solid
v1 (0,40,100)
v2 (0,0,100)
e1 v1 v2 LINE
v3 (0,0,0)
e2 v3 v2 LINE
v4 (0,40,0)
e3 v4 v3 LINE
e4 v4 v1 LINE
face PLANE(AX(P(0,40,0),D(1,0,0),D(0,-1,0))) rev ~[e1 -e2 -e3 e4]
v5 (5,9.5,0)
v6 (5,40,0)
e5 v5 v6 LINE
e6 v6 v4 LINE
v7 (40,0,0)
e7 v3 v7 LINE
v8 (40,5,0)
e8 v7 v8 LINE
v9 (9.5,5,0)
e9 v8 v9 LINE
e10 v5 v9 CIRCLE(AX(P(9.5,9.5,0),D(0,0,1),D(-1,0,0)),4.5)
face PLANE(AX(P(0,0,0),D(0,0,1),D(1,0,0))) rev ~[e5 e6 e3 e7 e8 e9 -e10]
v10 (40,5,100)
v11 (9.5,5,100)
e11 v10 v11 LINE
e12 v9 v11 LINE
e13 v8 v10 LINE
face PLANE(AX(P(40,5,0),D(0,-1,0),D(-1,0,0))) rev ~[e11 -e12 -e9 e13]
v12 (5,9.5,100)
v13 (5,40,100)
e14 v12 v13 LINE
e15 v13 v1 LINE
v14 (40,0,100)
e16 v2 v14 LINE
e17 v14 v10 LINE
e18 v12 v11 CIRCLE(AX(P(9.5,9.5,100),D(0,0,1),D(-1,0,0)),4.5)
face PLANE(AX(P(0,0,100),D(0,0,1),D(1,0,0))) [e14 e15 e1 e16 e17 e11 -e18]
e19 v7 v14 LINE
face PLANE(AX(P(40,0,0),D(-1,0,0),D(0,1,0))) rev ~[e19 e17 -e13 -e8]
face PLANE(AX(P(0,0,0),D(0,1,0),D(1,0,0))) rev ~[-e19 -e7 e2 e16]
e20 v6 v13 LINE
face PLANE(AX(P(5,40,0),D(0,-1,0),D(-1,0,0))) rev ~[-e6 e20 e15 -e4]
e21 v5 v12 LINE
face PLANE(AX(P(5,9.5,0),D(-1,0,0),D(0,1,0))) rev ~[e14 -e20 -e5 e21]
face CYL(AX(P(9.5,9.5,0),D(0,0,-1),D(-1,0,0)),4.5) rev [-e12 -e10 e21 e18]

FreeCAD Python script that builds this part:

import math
import FreeCAD as App
import Part
import Sketcher

V = App.Vector
Q = App.Units.Quantity

doc = App.newDocument("Part")
body = doc.addObject("PartDesign::Body", "Body")

sketch1 = body.newObject("Sketcher::SketchObject", "Sketch")
sketch1.AttachmentSupport = (doc.getObject("XY_Plane"), [""])
sketch1.MapMode = "FlatFace"
sketch1.addGeometry(Part.LineSegment(V(5, 40, 0), V(0, 40, 0)), False)
sketch1.addGeometry(Part.LineSegment(V(0, 40, 0), V(0, 0, 0)), False)
sketch1.addGeometry(Part.LineSegment(V(0, 0, 0), V(40, 0, 0)), False)
sketch1.addGeometry(Part.LineSegment(V(40, 0, 0), V(40, 5, 0)), False)
sketch1.addGeometry(Part.LineSegment(V(40, 5, 0), V(9.5, 5, 0)), False)
sketch1.addGeometry(Part.ArcOfCircle(Part.Circle(V(9.5, 9.5, 0), V(0, 0, 1), 4.5), math.radians(180), math.radians(270)), False)
sketch1.addGeometry(Part.LineSegment(V(5, 9.5, 0), V(5, 40, 0)), False)
sketch1.addConstraint(Sketcher.Constraint("Coincident", 0, 2, 1, 1))
sketch1.addConstraint(Sketcher.Constraint("Coincident", 1, 2, 2, 1))
sketch1.addConstraint(Sketcher.Constraint("Coincident", 2, 2, 3, 1))
sketch1.addConstraint(Sketcher.Constraint("Coincident", 3, 2, 4, 1))
sketch1.addConstraint(Sketcher.Constraint("Tangent", 4, 2, 5, 2))
sketch1.addConstraint(Sketcher.Constraint("Tangent", 5, 1, 6, 1))
sketch1.addConstraint(Sketcher.Constraint("Coincident", 6, 2, 0, 1))
sketch1.addConstraint(Sketcher.Constraint("Horizontal", 0))
sketch1.addConstraint(Sketcher.Constraint("Vertical", 1))
sketch1.addConstraint(Sketcher.Constraint("Horizontal", 2))
sketch1.addConstraint(Sketcher.Constraint("Vertical", 3))
sketch1.addConstraint(Sketcher.Constraint("Horizontal", 4))
sketch1.addConstraint(Sketcher.Constraint("Vertical", 6))
sketch1.addConstraint(Sketcher.Constraint("Coincident", 1, 2, -1, 1))
sketch1.addConstraint(Sketcher.Constraint("Equal", 2, 1))
sketch1.addConstraint(Sketcher.Constraint("Equal", 0, 3))
sketch1.addConstraint(Sketcher.Constraint("Radius", 5, Q("4.5 mm")))
sketch1.addConstraint(Sketcher.Constraint("DistanceX", 0, 2, 0, 1, Q("5 mm")))
sketch1.addConstraint(Sketcher.Constraint("DistanceX", 2, 1, 2, 2, Q("40 mm")))
pad1 = body.newObject("PartDesign::Pad", "Pad")
pad1.Profile = sketch1
pad1.Length = 100

doc.recompute()
